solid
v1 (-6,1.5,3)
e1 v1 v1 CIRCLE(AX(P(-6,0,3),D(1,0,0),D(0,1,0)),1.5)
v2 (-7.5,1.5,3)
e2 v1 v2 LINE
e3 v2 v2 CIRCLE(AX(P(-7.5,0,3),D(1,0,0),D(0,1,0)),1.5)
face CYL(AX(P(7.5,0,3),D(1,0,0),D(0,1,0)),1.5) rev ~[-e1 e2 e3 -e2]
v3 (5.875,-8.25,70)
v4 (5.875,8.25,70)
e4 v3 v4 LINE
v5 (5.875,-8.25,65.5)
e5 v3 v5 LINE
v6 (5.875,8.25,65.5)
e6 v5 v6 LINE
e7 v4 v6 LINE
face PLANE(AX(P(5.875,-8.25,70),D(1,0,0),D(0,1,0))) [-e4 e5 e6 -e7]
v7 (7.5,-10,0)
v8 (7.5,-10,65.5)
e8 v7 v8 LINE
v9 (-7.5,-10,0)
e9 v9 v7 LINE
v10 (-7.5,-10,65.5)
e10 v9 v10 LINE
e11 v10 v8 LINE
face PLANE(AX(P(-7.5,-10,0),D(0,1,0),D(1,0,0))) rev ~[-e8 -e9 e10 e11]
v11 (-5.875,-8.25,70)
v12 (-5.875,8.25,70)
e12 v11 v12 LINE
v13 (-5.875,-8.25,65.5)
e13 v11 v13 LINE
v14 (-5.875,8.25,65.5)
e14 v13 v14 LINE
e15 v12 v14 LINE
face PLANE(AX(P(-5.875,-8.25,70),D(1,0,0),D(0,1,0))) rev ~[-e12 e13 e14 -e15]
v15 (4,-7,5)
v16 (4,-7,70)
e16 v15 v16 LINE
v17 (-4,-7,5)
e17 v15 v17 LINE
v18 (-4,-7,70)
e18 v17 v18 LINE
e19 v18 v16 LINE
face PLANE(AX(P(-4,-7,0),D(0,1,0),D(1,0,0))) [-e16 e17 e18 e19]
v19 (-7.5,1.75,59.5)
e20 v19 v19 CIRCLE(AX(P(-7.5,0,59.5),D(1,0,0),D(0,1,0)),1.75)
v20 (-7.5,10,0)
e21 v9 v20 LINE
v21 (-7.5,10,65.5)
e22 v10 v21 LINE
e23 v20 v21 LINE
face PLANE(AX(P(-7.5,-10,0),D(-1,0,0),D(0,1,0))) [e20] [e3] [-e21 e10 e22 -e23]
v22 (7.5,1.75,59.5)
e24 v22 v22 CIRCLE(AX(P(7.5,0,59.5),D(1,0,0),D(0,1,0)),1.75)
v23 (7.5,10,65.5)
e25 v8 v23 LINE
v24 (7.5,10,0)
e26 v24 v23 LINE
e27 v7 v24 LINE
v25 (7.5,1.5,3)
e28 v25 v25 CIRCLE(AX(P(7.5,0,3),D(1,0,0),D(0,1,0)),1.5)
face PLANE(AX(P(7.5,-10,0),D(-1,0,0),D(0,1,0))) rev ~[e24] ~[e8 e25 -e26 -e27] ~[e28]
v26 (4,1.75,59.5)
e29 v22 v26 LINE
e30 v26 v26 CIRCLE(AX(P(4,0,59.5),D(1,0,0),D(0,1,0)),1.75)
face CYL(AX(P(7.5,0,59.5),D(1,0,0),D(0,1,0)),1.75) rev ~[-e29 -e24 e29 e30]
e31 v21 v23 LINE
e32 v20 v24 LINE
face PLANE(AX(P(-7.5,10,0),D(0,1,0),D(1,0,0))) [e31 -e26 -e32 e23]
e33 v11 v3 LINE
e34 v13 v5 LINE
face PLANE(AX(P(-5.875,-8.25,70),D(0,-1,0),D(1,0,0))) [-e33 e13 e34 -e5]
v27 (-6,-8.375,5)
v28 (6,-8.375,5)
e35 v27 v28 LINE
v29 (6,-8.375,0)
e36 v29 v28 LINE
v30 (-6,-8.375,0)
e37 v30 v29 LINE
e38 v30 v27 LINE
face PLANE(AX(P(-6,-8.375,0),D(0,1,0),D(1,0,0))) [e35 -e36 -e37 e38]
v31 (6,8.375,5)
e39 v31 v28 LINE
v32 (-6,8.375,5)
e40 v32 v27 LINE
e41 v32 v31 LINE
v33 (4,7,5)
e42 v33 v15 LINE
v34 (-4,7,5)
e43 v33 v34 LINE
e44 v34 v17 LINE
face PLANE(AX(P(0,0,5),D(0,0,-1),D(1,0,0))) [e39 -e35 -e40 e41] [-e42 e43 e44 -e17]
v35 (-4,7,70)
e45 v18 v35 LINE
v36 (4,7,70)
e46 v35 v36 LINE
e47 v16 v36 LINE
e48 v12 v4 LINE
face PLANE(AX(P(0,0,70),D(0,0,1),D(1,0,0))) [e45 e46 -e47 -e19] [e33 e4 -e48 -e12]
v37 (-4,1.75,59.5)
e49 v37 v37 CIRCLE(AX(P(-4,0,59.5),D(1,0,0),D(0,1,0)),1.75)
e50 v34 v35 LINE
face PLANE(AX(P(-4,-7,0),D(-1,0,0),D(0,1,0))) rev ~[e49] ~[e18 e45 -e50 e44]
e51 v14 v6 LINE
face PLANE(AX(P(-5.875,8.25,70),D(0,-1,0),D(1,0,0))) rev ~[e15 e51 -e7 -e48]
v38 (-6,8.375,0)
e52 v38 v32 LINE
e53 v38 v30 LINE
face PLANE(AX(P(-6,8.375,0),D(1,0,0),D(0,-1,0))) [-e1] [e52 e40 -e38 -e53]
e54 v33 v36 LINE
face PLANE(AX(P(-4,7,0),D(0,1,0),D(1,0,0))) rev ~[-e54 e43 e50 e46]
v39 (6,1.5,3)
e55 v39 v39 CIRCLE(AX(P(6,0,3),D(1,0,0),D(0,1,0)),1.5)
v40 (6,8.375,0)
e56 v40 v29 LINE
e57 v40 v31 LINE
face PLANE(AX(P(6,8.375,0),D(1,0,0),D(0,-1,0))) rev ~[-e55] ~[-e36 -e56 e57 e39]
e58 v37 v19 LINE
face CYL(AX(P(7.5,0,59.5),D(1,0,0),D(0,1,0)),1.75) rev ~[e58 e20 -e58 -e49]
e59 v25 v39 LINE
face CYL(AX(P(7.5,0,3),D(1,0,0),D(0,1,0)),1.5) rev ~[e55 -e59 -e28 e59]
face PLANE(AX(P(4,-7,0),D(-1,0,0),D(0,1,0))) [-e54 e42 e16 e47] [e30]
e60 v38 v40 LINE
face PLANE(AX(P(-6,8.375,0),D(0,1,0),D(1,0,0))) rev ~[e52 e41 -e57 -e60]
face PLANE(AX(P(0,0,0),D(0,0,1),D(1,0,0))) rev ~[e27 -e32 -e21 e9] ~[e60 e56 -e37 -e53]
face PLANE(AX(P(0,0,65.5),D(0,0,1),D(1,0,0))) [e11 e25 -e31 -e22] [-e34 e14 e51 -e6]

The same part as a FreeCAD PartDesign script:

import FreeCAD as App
import Part
import Sketcher

V = App.Vector

doc = App.newDocument("Part")
body = doc.addObject("PartDesign::Body", "Body")

sketch1 = body.newObject("Sketcher::SketchObject", "Sketch")
sketch1.AttachmentSupport = (doc.getObject("XY_Plane"), [""])
sketch1.MapMode = "FlatFace"
sketch1.addGeometry(Part.LineSegment(V(-8, 10, 0), V(-8, -10, 0)), False)
sketch1.addGeometry(Part.LineSegment(V(-8, -10, 0), V(8, -10, 0)), False)
sketch1.addGeometry(Part.LineSegment(V(8, -10, 0), V(8, 10, 0)), False)
sketch1.addGeometry(Part.LineSegment(V(8, 10, 0), V(-8, 10, 0)), False)
sketch1.addGeometry(Part.LineSegment(V(4, -7, 0), V(-4, -7, 0)), False)
sketch1.addGeometry(Part.LineSegment(V(-4, -7, 0), V(-4, 7, 0)), False)
sketch1.addGeometry(Part.LineSegment(V(-4, 7, 0), V(4, 7, 0)), False)
sketch1.addGeometry(Part.LineSegment(V(4, 7, 0), V(4, -7, 0)), False)
sketch1.addConstraint(Sketcher.Constraint("Coincident", 0, 2, 1, 1))
sketch1.addConstraint(Sketcher.Constraint("Coincident", 1, 2, 2, 1))
sketch1.addConstraint(Sketcher.Constraint("Coincident", 2, 2, 3, 1))
sketch1.addConstraint(Sketcher.Constraint("Coincident", 3, 2, 0, 1))
sketch1.addConstraint(Sketcher.Constraint("Coincident", 4, 2, 5, 1))
sketch1.addConstraint(Sketcher.Constraint("Coincident", 5, 2, 6, 1))
sketch1.addConstraint(Sketcher.Constraint("Coincident", 6, 2, 7, 1))
sketch1.addConstraint(Sketcher.Constraint("Coincident", 7, 2, 4, 1))
sketch1.addConstraint(Sketcher.Constraint("Vertical", 0))
sketch1.addConstraint(Sketcher.Constraint("Horizontal", 1))
sketch1.addConstraint(Sketcher.Constraint("Vertical", 2))
sketch1.addConstraint(Sketcher.Constraint("Horizontal", 3))
sketch1.addConstraint(Sketcher.Constraint("Horizontal", 4))
sketch1.addConstraint(Sketcher.Constraint("Vertical", 5))
sketch1.addConstraint(Sketcher.Constraint("Horizontal", 6))
sketch1.addConstraint(Sketcher.Constraint("Vertical", 7))
sketch1.addConstraint(Sketcher.Constraint("Symmetric", 0, 2, 2, 2, -1, 1))
sketch1.addConstraint(Sketcher.Constraint("Symmetric", 4, 2, 6, 2, -1, 1))
sketch1.addConstraint(Sketcher.Constraint("DistanceX", 1, 1, 1, 2, 15.0))
sketch1.addConstraint(Sketcher.Constraint("DistanceX", 4, 2, 4, 1, 8.0))
sketch1.addConstraint(Sketcher.Constraint("DistanceY", 0, 2, 0, 1, 20.0))
sketch1.addConstraint(Sketcher.Constraint("DistanceY", 5, 1, 5, 2, 14.0))
pad1 = body.newObject("PartDesign::Pad", "Pad")
pad1.Profile = sketch1
pad1.Length = 70

sketch2 = body.newObject("Sketcher::SketchObject", "Sketch001")
sketch2.AttachmentSupport = (doc.getObject("XY_Plane"), [""])
sketch2.MapMode = "FlatFace"
sketch2.AttachmentOffset = App.Placement(V(0, 0, 70), App.Rotation())
sketch2.addGeometry(Part.LineSegment(V(-9, 12, 0), V(-9, -12, 0)), False)
sketch2.addGeometry(Part.LineSegment(V(-9, -12, 0), V(9, -12, 0)), False)
sketch2.addGeometry(Part.LineSegment(V(9, -12, 0), V(9, 12, 0)), False)
sketch2.addGeometry(Part.LineSegment(V(9, 12, 0), V(-9, 12, 0)), False)
sketch2.addGeometry(Part.LineSegment(V(6, -8, 0), V(-6, -8, 0)), False)
sketch2.addGeometry(Part.LineSegment(V(-6, -8, 0), V(-6, 8, 0)), False)
sketch2.addGeometry(Part.LineSegment(V(-6, 8, 0), V(6, 8, 0)), False)
sketch2.addGeometry(Part.LineSegment(V(6, 8, 0), V(6, -8, 0)), False)
sketch2.addConstraint(Sketcher.Constraint("Coincident", 0, 2, 1, 1))
sketch2.addConstraint(Sketcher.Constraint("Coincident", 1, 2, 2, 1))
sketch2.addConstraint(Sketcher.Constraint("Coincident", 2, 2, 3, 1))
sketch2.addConstraint(Sketcher.Constraint("Coincident", 3, 2, 0, 1))
sketch2.addConstraint(Sketcher.Constraint("Coincident", 4, 2, 5, 1))
sketch2.addConstraint(Sketcher.Constraint("Coincident", 5, 2, 6, 1))
sketch2.addConstraint(Sketcher.Constraint("Coincident", 6, 2, 7, 1))
sketch2.addConstraint(Sketcher.Constraint("Coincident", 7, 2, 4, 1))
sketch2.addConstraint(Sketcher.Constraint("Vertical", 0))
sketch2.addConstraint(Sketcher.Constraint("Horizontal", 1))
sketch2.addConstraint(Sketcher.Constraint("Vertical", 2))
sketch2.addConstraint(Sketcher.Constraint("Horizontal", 3))
sketch2.addConstraint(Sketcher.Constraint("Horizontal", 4))
sketch2.addConstraint(Sketcher.Constraint("Vertical", 5))
sketch2.addConstraint(Sketcher.Constraint("Horizontal", 6))
sketch2.addConstraint(Sketcher.Constraint("Vertical", 7))
sketch2.addConstraint(Sketcher.Constraint("Symmetric", 0, 2, 2, 2, -1, 1))
sketch2.addConstraint(Sketcher.Constraint("Symmetric", 4, 2, 6, 2, -1, 1))
sketch2.addConstraint(Sketcher.Constraint("DistanceY", 5, 1, 5, 2, 16.5))
sketch2.addConstraint(Sketcher.Constraint("DistanceX", 4, 2, 4, 1, 11.75))
sketch2.addConstraint(Sketcher.Constraint("DistanceX", 1, 1, 1, 2, 18.400512))
sketch2.addConstraint(Sketcher.Constraint("DistanceY", 0, 2, 0, 1, 24.49468))
pocket1 = body.newObject("PartDesign::Pocket", "Pocket")
pocket1.Profile = sketch2
pocket1.Length = 4.5

sketch3 = body.newObject("Sketcher::SketchObject", "Sketch002")
sketch3.AttachmentSupport = (doc.getObject("YZ_Plane"), [""])
sketch3.MapMode = "FlatFace"
sketch3.AttachmentOffset = App.Placement(V(0, 0, 7.5), App.Rotation())
sketch3.addGeometry(Part.Circle(V(0, 59.5, 0), V(0, 0, 1), 1.8), False)
sketch3.addGeometry(Part.Circle(V(0, 3, 0), V(0, 0, 1), 1.5), False)
sketch3.addConstraint(Sketcher.Constraint("PointOnObject", 0, 3, -2))
sketch3.addConstraint(Sketcher.Constraint("PointOnObject", 1, 3, -2))
sketch3.addConstraint(Sketcher.Constraint("Diameter", 1, 3.0))
sketch3.addConstraint(Sketcher.Constraint("Diameter", 0, 3.5))
sketch3.addConstraint(Sketcher.Constraint("DistanceY", -1, 1, 1, 3, 3.0))
sketch3.addConstraint(Sketcher.Constraint("DistanceY", -1, 1, 0, 3, 59.5))
pocket2 = body.newObject("PartDesign::Pocket", "Pocket001")
pocket2.Profile = sketch3
pocket2.Length = 25

sketch4 = body.newObject("Sketcher::SketchObject", "Sketch003")
sketch4.AttachmentSupport = (doc.getObject("XY_Plane"), [""])
sketch4.MapMode = "FlatFace"
sketch4.addGeometry(Part.LineSegment(V(-6, -8, 0), V(-6, 8, 0)), False)
sketch4.addGeometry(Part.LineSegment(V(-6, 8, 0), V(6, 8, 0)), False)
sketch4.addGeometry(Part.LineSegment(V(6, 8, 0), V(6, -8, 0)), False)
sketch4.addGeometry(Part.LineSegment(V(6, -8, 0), V(-6, -8, 0)), False)
sketch4.addConstraint(Sketcher.Constraint("Coincident", 0, 2, 1, 1))
sketch4.addConstraint(Sketcher.Constraint("Coincident", 1, 2, 2, 1))
sketch4.addConstraint(Sketcher.Constraint("Coincident", 2, 2, 3, 1))
sketch4.addConstraint(Sketcher.Constraint("Coincident", 3, 2, 0, 1))
sketch4.addConstraint(Sketcher.Constraint("Vertical", 0))
sketch4.addConstraint(Sketcher.Constraint("Horizontal", 1))
sketch4.addConstraint(Sketcher.Constraint("Vertical", 2))
sketch4.addConstraint(Sketcher.Constraint("Horizontal", 3))
sketch4.addConstraint(Sketcher.Constraint("Symmetric", 0, 2, 2, 2, -1, 1))
sketch4.addConstraint(Sketcher.Constraint("DistanceX", 1, 1, 1, 2, 12.0))
sketch4.addConstraint(Sketcher.Constraint("DistanceY", 0, 1, 0, 2, 16.75))
pocket3 = body.newObject("PartDesign::Pocket", "Pocket002")
pocket3.Profile = sketch4
pocket3.Length = 5
pocket3.Reversed = True

doc.recompute()
